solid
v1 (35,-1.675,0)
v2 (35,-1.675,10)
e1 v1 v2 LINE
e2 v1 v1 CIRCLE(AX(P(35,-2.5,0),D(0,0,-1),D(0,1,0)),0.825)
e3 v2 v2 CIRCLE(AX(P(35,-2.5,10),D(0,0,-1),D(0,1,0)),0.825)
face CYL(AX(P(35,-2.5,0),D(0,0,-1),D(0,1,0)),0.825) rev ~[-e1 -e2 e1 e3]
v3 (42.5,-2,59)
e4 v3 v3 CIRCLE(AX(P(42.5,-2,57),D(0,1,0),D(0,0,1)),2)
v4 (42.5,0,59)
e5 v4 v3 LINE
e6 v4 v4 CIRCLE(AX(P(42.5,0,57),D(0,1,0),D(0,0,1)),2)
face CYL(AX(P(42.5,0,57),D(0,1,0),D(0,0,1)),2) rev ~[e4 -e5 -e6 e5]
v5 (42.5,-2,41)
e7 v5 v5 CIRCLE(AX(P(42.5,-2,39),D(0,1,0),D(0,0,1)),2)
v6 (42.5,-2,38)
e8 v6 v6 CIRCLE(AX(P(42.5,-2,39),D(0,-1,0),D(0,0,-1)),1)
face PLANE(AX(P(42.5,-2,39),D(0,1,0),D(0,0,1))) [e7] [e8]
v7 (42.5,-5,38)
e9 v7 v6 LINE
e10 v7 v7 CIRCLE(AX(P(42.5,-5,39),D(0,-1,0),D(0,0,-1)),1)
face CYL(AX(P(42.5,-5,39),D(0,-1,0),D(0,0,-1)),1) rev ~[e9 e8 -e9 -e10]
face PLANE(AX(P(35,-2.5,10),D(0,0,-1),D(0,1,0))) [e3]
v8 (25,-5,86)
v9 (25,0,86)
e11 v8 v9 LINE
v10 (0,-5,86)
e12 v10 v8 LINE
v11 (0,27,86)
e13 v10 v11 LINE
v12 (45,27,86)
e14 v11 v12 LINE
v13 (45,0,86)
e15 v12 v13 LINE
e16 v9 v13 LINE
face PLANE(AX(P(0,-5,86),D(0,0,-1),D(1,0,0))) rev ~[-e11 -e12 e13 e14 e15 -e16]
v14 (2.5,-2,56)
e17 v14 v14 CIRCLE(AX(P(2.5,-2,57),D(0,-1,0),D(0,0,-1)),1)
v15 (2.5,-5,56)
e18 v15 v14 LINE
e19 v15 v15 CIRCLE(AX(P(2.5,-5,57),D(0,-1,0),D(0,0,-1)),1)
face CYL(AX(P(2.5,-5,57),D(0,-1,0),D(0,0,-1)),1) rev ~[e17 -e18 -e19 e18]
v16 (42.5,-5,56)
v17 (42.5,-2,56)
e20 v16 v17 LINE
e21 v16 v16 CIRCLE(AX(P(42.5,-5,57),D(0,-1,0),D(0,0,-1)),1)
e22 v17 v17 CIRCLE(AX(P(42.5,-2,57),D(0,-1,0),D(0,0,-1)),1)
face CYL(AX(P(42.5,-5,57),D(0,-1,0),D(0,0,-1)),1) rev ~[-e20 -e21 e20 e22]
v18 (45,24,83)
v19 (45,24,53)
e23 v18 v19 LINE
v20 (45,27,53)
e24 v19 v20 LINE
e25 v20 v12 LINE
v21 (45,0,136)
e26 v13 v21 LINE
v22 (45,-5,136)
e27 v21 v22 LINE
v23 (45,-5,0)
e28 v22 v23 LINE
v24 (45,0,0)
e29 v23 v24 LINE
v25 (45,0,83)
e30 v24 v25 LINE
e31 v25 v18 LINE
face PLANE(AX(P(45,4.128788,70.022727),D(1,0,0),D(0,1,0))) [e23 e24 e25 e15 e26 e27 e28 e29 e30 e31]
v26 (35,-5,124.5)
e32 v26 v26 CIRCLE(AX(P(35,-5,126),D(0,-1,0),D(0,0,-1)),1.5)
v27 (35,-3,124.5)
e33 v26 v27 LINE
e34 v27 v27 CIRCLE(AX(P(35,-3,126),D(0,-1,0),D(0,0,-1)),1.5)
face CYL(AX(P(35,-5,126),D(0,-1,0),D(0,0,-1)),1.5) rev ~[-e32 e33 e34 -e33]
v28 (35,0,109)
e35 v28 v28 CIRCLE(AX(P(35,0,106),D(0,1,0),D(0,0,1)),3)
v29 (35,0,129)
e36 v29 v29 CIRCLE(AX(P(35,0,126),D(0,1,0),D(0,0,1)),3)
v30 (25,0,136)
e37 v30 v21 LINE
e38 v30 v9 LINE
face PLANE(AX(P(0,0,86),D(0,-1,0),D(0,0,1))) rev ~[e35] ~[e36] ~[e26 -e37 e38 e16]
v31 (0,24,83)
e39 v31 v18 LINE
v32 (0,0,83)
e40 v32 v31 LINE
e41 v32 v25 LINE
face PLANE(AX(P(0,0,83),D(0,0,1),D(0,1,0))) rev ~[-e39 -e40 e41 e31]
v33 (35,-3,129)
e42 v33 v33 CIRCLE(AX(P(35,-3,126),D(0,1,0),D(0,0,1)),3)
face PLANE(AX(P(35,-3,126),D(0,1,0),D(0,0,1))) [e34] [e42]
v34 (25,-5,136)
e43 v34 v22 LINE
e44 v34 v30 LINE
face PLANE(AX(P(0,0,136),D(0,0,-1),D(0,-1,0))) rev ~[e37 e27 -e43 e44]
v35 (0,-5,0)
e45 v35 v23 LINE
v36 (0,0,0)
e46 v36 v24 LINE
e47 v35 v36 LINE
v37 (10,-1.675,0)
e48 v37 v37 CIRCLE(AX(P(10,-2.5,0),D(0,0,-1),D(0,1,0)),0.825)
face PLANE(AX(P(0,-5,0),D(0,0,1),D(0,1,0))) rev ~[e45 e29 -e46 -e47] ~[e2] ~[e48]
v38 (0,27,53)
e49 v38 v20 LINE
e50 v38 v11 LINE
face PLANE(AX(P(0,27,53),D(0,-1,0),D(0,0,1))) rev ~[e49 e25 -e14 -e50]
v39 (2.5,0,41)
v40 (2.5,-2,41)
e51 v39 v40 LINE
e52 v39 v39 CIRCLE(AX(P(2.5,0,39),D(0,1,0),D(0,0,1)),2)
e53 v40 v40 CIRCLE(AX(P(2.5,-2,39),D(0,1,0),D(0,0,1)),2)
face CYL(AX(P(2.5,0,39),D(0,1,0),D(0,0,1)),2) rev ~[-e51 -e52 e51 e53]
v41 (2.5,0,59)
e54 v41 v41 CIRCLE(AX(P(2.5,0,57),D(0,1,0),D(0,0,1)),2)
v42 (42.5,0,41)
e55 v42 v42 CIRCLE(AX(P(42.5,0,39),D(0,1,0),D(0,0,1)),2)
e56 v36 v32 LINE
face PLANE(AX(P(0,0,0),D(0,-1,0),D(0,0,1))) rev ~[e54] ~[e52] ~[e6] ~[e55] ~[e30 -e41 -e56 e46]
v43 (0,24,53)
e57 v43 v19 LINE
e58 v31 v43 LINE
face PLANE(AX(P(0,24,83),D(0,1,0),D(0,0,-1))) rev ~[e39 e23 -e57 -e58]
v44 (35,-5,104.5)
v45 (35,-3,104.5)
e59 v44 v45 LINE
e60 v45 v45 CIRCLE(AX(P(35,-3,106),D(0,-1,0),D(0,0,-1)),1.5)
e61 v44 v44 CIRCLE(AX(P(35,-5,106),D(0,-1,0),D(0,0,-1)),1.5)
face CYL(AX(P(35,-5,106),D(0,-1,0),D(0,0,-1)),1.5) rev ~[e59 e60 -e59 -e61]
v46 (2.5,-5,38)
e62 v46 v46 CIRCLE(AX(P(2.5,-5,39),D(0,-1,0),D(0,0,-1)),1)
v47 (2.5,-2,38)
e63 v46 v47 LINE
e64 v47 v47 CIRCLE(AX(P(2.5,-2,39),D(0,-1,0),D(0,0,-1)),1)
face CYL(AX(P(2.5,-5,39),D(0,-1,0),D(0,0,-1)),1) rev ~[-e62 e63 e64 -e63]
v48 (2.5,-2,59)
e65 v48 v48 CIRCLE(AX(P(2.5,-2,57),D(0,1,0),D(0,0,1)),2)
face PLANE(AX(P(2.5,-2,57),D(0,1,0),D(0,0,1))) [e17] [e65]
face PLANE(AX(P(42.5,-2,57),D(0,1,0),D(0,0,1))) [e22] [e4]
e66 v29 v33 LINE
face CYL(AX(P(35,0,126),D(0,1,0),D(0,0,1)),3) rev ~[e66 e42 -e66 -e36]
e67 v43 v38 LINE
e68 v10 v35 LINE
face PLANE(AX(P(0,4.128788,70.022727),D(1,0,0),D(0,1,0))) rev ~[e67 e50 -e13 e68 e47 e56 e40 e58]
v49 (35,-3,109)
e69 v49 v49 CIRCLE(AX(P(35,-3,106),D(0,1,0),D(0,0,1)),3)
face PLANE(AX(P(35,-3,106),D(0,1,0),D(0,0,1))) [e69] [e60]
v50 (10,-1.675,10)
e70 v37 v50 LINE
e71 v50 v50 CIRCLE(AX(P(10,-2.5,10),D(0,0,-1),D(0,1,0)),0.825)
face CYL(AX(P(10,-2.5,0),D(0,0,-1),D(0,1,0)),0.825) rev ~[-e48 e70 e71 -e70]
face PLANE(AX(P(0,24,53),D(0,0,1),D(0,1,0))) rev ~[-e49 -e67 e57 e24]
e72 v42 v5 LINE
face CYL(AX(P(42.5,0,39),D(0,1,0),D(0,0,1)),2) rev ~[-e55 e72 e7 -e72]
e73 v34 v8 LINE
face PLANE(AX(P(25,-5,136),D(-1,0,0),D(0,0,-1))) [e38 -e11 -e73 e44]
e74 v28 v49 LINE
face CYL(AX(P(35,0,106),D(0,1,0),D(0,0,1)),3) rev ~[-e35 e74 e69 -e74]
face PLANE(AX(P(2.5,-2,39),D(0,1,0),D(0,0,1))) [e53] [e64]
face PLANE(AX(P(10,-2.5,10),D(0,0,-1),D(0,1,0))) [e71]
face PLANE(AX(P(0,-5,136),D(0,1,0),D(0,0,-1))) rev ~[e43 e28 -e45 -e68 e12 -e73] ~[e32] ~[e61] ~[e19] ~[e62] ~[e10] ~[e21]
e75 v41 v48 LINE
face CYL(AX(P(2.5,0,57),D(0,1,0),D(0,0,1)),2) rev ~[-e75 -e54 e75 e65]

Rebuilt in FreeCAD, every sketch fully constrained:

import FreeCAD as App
import Part
import Sketcher
from FreeCAD import Vector


def add_polygon(sketch, points):
    """Adds a closed chain of lines whose ends are joined by coincident constraints."""
    first, n = sketch.GeometryCount, len(points)
    for a, b in zip(points, points[1:] + points[:1]):
        sketch.addGeometry(Part.LineSegment(App.Vector(*a, 0), App.Vector(*b, 0)), False)
    for i in range(n):
        sketch.addConstraint(Sketcher.Constraint("Coincident", first + i, 2, first + (i + 1) % n, 1))

doc = App.newDocument("Part")
body = doc.addObject("PartDesign::Body", "Body")

# Sketch on YZ plane
sketch1 = body.newObject("Sketcher::SketchObject", "Sketch")
sketch1.AttachmentSupport = (doc.getObject("YZ_Plane"), [""])
sketch1.MapMode = "FlatFace"
add_polygon(sketch1, [(0, 0), (0, 83), (24, 83), (24, 53), (27, 53), (27, 86), (0, 86), (0, 136), (-5, 136), (-5, 0)])  # lines 0-9
sketch1.addConstraint(Sketcher.Constraint("Vertical", 0))
sketch1.addConstraint(Sketcher.Constraint("Horizontal", 1))
sketch1.addConstraint(Sketcher.Constraint("Vertical", 2))
sketch1.addConstraint(Sketcher.Constraint("Horizontal", 3))
sketch1.addConstraint(Sketcher.Constraint("Vertical", 4))
sketch1.addConstraint(Sketcher.Constraint("Horizontal", 5))
sketch1.addConstraint(Sketcher.Constraint("Vertical", 6))
sketch1.addConstraint(Sketcher.Constraint("Horizontal", 7))
sketch1.addConstraint(Sketcher.Constraint("Vertical", 8))
sketch1.addConstraint(Sketcher.Constraint("Horizontal", 9))
sketch1.addConstraint(Sketcher.Constraint("Coincident", 9, 2, -1, 1))
sketch1.addConstraint(Sketcher.Constraint("PointOnObject", 5, 2, -2))
sketch1.addConstraint(Sketcher.Constraint("DistanceX", 1, 1, 1, 2, 24.0))
sketch1.addConstraint(Sketcher.Constraint("DistanceX", 3, 1, 3, 2, 3.0))
sketch1.addConstraint(Sketcher.Constraint("DistanceX", 7, 2, 7, 1, 5.0))
sketch1.addConstraint(Sketcher.Constraint("DistanceY", 0, 1, 0, 2, 83.0))
sketch1.addConstraint(Sketcher.Constraint("DistanceY", 2, 2, 2, 1, 30.0))
sketch1.addConstraint(Sketcher.Constraint("DistanceY", 4, 1, 4, 2, 33.0))
sketch1.addConstraint(Sketcher.Constraint("DistanceY", 6, 1, 6, 2, 50.0))
pad1 = body.newObject("PartDesign::Pad", "Pad")
pad1.Profile = sketch1
pad1.Length = 45

# Sketch on XZ plane
sketch2 = body.newObject("Sketcher::SketchObject", "Sketch001")
sketch2.AttachmentSupport = (doc.getObject("XZ_Plane"), [""])
sketch2.MapMode = "FlatFace"
sketch2.AttachmentOffset = App.Placement(Vector(0, 0, 5), App.Rotation())
sketch2.addGeometry(Part.Circle(Vector(42.5, 57, 0), Vector(0, 0, 1), 1), False)
sketch2.addGeometry(Part.Circle(Vector(42.5, 39, 0), Vector(0, 0, 1), 1), False)
sketch2.addGeometry(Part.Circle(Vector(2.5, 57, 0), Vector(0, 0, 1), 1), False)
sketch2.addGeometry(Part.Circle(Vector(2.5, 39, 0), Vector(0, 0, 1), 1), False)
sketch2.addConstraint(Sketcher.Constraint("Equal", 0, 1))
sketch2.addConstraint(Sketcher.Constraint("Equal", 1, 2))
sketch2.addConstraint(Sketcher.Constraint("Equal", 2, 3))
sketch2.addConstraint(Sketcher.Constraint("Horizontal", 0, 3, 2, 3))
sketch2.addConstraint(Sketcher.Constraint("Horizontal", 1, 3, 3, 3))
sketch2.addConstraint(Sketcher.Constraint("Vertical", 0, 3, 1, 3))
sketch2.addConstraint(Sketcher.Constraint("Vertical", 2, 3, 3, 3))
sketch2.addConstraint(Sketcher.Constraint("Diameter", 0, 2.0))
sketch2.addConstraint(Sketcher.Constraint("DistanceY", -1, 1, 0, 3, 57.0))
sketch2.addConstraint(Sketcher.Constraint("DistanceY", -1, 1, 1, 3, 39.0))
sketch2.addConstraint(Sketcher.Constraint("DistanceX", 2, 3, 0, 3, 40.0))
sketch2.addConstraint(Sketcher.Constraint("DistanceX", -1, 1, 0, 3, 42.5))
pocket1 = body.newObject("PartDesign::Pocket", "Pocket")
pocket1.Profile = sketch2
pocket1.Length = 5

# Sketch on XY plane
sketch3 = body.newObject("Sketcher::SketchObject", "Sketch002")
sketch3.AttachmentSupport = (doc.getObject("XY_Plane"), [""])
sketch3.MapMode = "FlatFace"
sketch3.addGeometry(Part.Circle(Vector(35, -2.5, 0), Vector(0, 0, 1), 0.8), False)
sketch3.addGeometry(Part.Circle(Vector(10, -2.5, 0), Vector(0, 0, 1), 0.8), False)
sketch3.addConstraint(Sketcher.Constraint("Equal", 0, 1))
sketch3.addConstraint(Sketcher.Constraint("Horizontal", 0, 3, 1, 3))
sketch3.addConstraint(Sketcher.Constraint("Diameter", 0, 1.65))
sketch3.addConstraint(Sketcher.Constraint("DistanceX", -1, 1, 0, 3, 35.0))
sketch3.addConstraint(Sketcher.Constraint("DistanceX", -1, 1, 1, 3, 10.0))
sketch3.addConstraint(Sketcher.Constraint("DistanceY", 0, 3, -1, 1, 2.5))
pocket2 = body.newObject("PartDesign::Pocket", "Pocket001")
pocket2.Profile = sketch3
pocket2.Length = 10
pocket2.Reversed = True

# Sketch on XZ plane
sketch4 = body.newObject("Sketcher::SketchObject", "Sketch003")
sketch4.AttachmentSupport = (doc.getObject("XZ_Plane"), [""])
sketch4.MapMode = "FlatFace"
sketch4.AttachmentOffset = App.Placement(Vector(0, 0, 5), App.Rotation())
sketch4.addGeometry(Part.Circle(Vector(35, 126, 0), Vector(0, 0, 1), 1.5), False)
sketch4.addGeometry(Part.Circle(Vector(35, 106, 0), Vector(0, 0, 1), 1.5), False)
sketch4.addConstraint(Sketcher.Constraint("Equal", 0, 1))
sketch4.addConstraint(Sketcher.Constraint("Vertical", 0, 3, 1, 3))
sketch4.addConstraint(Sketcher.Constraint("Diameter", 0, 3.0))
sketch4.addConstraint(Sketcher.Constraint("DistanceX", -1, 1, 0, 3, 35.0))
sketch4.addConstraint(Sketcher.Constraint("DistanceY", -1, 1, 0, 3, 126.0))
sketch4.addConstraint(Sketcher.Constraint("DistanceY", -1, 1, 1, 3, 106.0))
pocket3 = body.newObject("PartDesign::Pocket", "Pocket002")
pocket3.Profile = sketch4
pocket3.Length = 5

# Sketch on XZ plane
sketch5 = body.newObject("Sketcher::SketchObject", "Sketch004")
sketch5.AttachmentSupport = (doc.getObject("XZ_Plane"), [""])
sketch5.MapMode = "FlatFace"
sketch5.AttachmentOffset = App.Placement(Vector(0, 0, 5), App.Rotation())
add_polygon(sketch5, [(25, 136), (0, 136), (0, 86), (25, 86)])  # lines 0-3
sketch5.addConstraint(Sketcher.Constraint("Horizontal", 0))
sketch5.addConstraint(Sketcher.Constraint("Vertical", 1))
sketch5.addConstraint(Sketcher.Constraint("Horizontal", 2))
sketch5.addConstraint(Sketcher.Constraint("Vertical", 3))
sketch5.addConstraint(Sketcher.Constraint("PointOnObject", 0, 2, -2))
sketch5.addConstraint(Sketcher.Constraint("DistanceX", 0, 2, 0, 1, 25.0))
sketch5.addConstraint(Sketcher.Constraint("DistanceY", 1, 2, 1, 1, 50.0))
sketch5.addConstraint(Sketcher.Constraint("DistanceY", -1, 1, 0, 2, 136.0))
pocket4 = body.newObject("PartDesign::Pocket", "Pocket003")
pocket4.Profile = sketch5
pocket4.Length = 5

# Sketch on XZ plane
sketch6 = body.newObject("Sketcher::SketchObject", "Sketch005")
sketch6.AttachmentSupport = (doc.getObject("XZ_Plane"), [""])
sketch6.MapMode = "FlatFace"
sketch6.addGeometry(Part.Circle(Vector(42.5, 39, 0), Vector(0, 0, 1), 2), False)
sketch6.addGeometry(Part.Circle(Vector(42.5, 57, 0), Vector(0, 0, 1), 2), False)
sketch6.addGeometry(Part.Circle(Vector(2.5, 39, 0), Vector(0, 0, 1), 2), False)
sketch6.addGeometry(Part.Circle(Vector(2.5, 57, 0), Vector(0, 0, 1), 2), False)
sketch6.addConstraint(Sketcher.Constraint("Equal", 0, 1))
sketch6.addConstraint(Sketcher.Constraint("Equal", 1, 2))
sketch6.addConstraint(Sketcher.Constraint("Equal", 2, 3))
sketch6.addConstraint(Sketcher.Constraint("Horizontal", 0, 3, 2, 3))
sketch6.addConstraint(Sketcher.Constraint("Horizontal", 1, 3, 3, 3))
sketch6.addConstraint(Sketcher.Constraint("Vertical", 0, 3, 1, 3))
sketch6.addConstraint(Sketcher.Constraint("Vertical", 2, 3, 3, 3))
sketch6.addConstraint(Sketcher.Constraint("Diameter", 0, 4.0))
sketch6.addConstraint(Sketcher.Constraint("DistanceY", -1, 1, 0, 3, 39.0))
sketch6.addConstraint(Sketcher.Constraint("DistanceY", -1, 1, 1, 3, 57.0))
sketch6.addConstraint(Sketcher.Constraint("DistanceX", 2, 3, 0, 3, 40.0))
sketch6.addConstraint(Sketcher.Constraint("DistanceX", -1, 1, 0, 3, 42.5))
pocket5 = body.newObject("PartDesign::Pocket", "Pocket004")
pocket5.Profile = sketch6
pocket5.Length = 2
pocket5.Reversed = True

# Sketch on XZ plane
sketch7 = body.newObject("Sketcher::SketchObject", "Sketch006")
sketch7.AttachmentSupport = (doc.getObject("XZ_Plane"), [""])
sketch7.MapMode = "FlatFace"
sketch7.addGeometry(Part.Circle(Vector(35, 106, 0), Vector(0, 0, 1), 3), False)
sketch7.addGeometry(Part.Circle(Vector(35, 126, 0), Vector(0, 0, 1), 3), False)
sketch7.addConstraint(Sketcher.Constraint("Equal", 0, 1))
sketch7.addConstraint(Sketcher.Constraint("Vertical", 0, 3, 1, 3))
sketch7.addConstraint(Sketcher.Constraint("Diameter", 0, 6.0))
sketch7.addConstraint(Sketcher.Constraint("DistanceX", -1, 1, 0, 3, 35.0))
sketch7.addConstraint(Sketcher.Constraint("DistanceY", -1, 1, 0, 3, 106.0))
sketch7.addConstraint(Sketcher.Constraint("DistanceY", -1, 1, 1, 3, 126.0))
pocket6 = body.newObject("PartDesign::Pocket", "Pocket005")
pocket6.Profile = sketch7
pocket6.Length = 3
pocket6.Reversed = True

doc.recompute()
